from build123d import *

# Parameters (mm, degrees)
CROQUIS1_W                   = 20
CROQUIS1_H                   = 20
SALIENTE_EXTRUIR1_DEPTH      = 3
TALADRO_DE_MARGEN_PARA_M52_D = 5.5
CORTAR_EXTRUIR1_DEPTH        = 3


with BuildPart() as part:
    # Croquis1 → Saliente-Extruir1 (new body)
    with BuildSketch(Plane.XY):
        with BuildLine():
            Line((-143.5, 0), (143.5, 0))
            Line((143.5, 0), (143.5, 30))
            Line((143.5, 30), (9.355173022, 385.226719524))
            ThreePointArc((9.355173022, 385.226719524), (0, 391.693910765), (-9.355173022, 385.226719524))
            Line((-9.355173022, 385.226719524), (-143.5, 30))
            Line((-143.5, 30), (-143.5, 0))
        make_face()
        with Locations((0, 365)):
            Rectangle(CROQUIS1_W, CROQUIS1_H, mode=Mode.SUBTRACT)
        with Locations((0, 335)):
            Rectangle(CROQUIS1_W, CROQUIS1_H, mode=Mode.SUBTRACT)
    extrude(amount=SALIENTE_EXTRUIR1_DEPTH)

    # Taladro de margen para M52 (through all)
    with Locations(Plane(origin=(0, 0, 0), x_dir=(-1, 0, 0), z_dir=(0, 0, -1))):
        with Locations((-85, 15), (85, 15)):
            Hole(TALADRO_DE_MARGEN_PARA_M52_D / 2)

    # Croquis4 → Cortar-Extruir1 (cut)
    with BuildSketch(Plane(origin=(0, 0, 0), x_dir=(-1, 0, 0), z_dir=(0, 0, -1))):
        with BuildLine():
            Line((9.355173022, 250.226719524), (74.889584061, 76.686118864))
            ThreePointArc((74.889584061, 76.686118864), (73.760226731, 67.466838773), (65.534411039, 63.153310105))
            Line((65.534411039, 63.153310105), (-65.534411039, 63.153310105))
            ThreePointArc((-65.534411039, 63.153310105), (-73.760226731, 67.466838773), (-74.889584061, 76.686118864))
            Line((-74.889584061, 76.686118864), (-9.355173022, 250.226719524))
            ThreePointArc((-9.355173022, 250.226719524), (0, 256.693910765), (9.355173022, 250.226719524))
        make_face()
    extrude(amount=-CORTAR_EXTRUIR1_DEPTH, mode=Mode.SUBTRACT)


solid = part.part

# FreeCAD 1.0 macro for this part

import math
import FreeCAD as App
import Part
import Sketcher

doc = App.newDocument("Part")
body = doc.addObject("PartDesign::Body", "Body")

# Sketch on XY plane
sketch1 = body.newObject("Sketcher::SketchObject", "Sketch")
sketch1.AttachmentSupport = (doc.getObject("XY_Plane"), [""])
sketch1.MapMode = "FlatFace"
sketch1.addGeometry([
    Part.LineSegment(App.Vector(-143.5, 0, 0), App.Vector(143.5, 0, 0)),  # 0
    Part.LineSegment(App.Vector(143.5, 0, 0), App.Vector(143.5, 30, 0)),  # 1
    Part.LineSegment(App.Vector(143.5, 30, 0), App.Vector(9.355173, 385.22672, 0)),  # 2
    Part.ArcOfCircle(Part.Circle(App.Vector(0, 381.693911, 0), App.Vector(0, 0, 1), 10), math.radians(20.68812), math.radians(159.31188)),  # 3
    Part.LineSegment(App.Vector(-9.355173, 385.22672, 0), App.Vector(-143.5, 30, 0)),  # 4
    Part.LineSegment(App.Vector(-143.5, 30, 0), App.Vector(-143.5, 0, 0)),  # 5
    Part.LineSegment(App.Vector(10, 325, 0), App.Vector(-10, 325, 0)),  # 6
    Part.LineSegment(App.Vector(-10, 325, 0), App.Vector(-10, 345, 0)),  # 7
    Part.LineSegment(App.Vector(-10, 345, 0), App.Vector(10, 345, 0)),  # 8
    Part.LineSegment(App.Vector(10, 345, 0), App.Vector(10, 325, 0)),  # 9
    Part.LineSegment(App.Vector(10, 355, 0), App.Vector(-10, 355, 0)),  # 10
    Part.LineSegment(App.Vector(-10, 355, 0), App.Vector(-10, 375, 0)),  # 11
    Part.LineSegment(App.Vector(-10, 375, 0), App.Vector(10, 375, 0)),  # 12
    Part.LineSegment(App.Vector(10, 375, 0), App.Vector(10, 355, 0)),  # 13
], False)
sketch1.addConstraint([
    Sketcher.Constraint("Coincident", 0, 2, 1, 1),
    Sketcher.Constraint("Coincident", 1, 2, 2, 1),
    Sketcher.Constraint("Tangent", 2, 2, 3, 1),
    Sketcher.Constraint("Tangent", 3, 2, 4, 1),
    Sketcher.Constraint("Coincident", 4, 2, 5, 1),
    Sketcher.Constraint("Coincident", 5, 2, 0, 1),
    Sketcher.Constraint("Coincident", 6, 2, 7, 1),
    Sketcher.Constraint("Coincident", 7, 2, 8, 1),
    Sketcher.Constraint("Coincident", 8, 2, 9, 1),
    Sketcher.Constraint("Coincident", 9, 2, 6, 1),
    Sketcher.Constraint("Coincident", 10, 2, 11, 1),
    Sketcher.Constraint("Coincident", 11, 2, 12, 1),
    Sketcher.Constraint("Coincident", 12, 2, 13, 1),
    Sketcher.Constraint("Coincident", 13, 2, 10, 1),
    Sketcher.Constraint("Horizontal", 0),
    Sketcher.Constraint("Vertical", 1),
    Sketcher.Constraint("Vertical", 5),
    Sketcher.Constraint("Horizontal", 6),
    Sketcher.Constraint("Vertical", 7),
    Sketcher.Constraint("Horizontal", 8),
    Sketcher.Constraint("Vertical", 9),
    Sketcher.Constraint("Horizontal", 10),
    Sketcher.Constraint("Vertical", 11),
    Sketcher.Constraint("Horizontal", 12),
    Sketcher.Constraint("Vertical", 13),
    Sketcher.Constraint("Symmetric", 0, 2, 5, 2, -1, 1),
    Sketcher.Constraint("PointOnObject", 3, 3, -2),
    Sketcher.Constraint("Horizontal", 1, 2, 4, 2),
    Sketcher.Constraint("Vertical", 7, 2, 10, 2),
    Sketcher.Constraint("Vertical", 9, 2, 12, 2),
    Sketcher.Constraint("Equal", 12, 7),
    Sketcher.Constraint("Equal", 9, 11),
    Sketcher.Constraint("Radius", 3, 10.0),
    Sketcher.Constraint("DistanceX", 0, 1, 0, 2, 287.0),
    Sketcher.Constraint("DistanceX", 6, 2, 6, 1, 20.0),
    Sketcher.Constraint("DistanceY", 1, 1, 1, 2, 30.0),
    Sketcher.Constraint("DistanceX", 6, 2, -1, 1, 10.0),
    Sketcher.Constraint("DistanceY", -1, 1, 6, 2, 325.0),
    Sketcher.Constraint("DistanceY", -1, 1, 10, 2, 355.0),
    Sketcher.Constraint("DistanceY", -1, 1, 3, 3, 381.693911),
])
pad1 = body.newObject("PartDesign::Pad", "Pad")
pad1.Profile = sketch1
pad1.Length = 3

# Sketch on XY plane
sketch2 = body.newObject("Sketcher::SketchObject", "Sketch001")
sketch2.AttachmentSupport = (doc.getObject("XY_Plane"), [""])
sketch2.MapMode = "FlatFace"
sketch2.addGeometry([
    Part.Circle(App.Vector(85, 15, 0), App.Vector(0, 0, 1), 2.75),
    Part.Circle(App.Vector(-85, 15, 0), App.Vector(0, 0, 1), 2.75),
], False)
sketch2.addConstraint([
    Sketcher.Constraint("Equal", 0, 1),
    Sketcher.Constraint("Symmetric", 0, 3, 1, 3, -2),
    Sketcher.Constraint("Diameter", 0, 5.5),
    Sketcher.Constraint("DistanceX", -1, 1, 0, 3, 85.0),
    Sketcher.Constraint("DistanceY", -1, 1, 0, 3, 15.0),
])
doc.recompute()
hole = body.newObject("PartDesign::Hole", "Hole")
hole.Profile = sketch2
hole.ThreadType = "None"
hole.Diameter = 5.5
hole.DepthType = "ThroughAll"
hole.Reversed = True

# Sketch on XY plane
sketch3 = body.newObject("Sketcher::SketchObject", "Sketch002")
sketch3.AttachmentSupport = (doc.getObject("XY_Plane"), [""])
sketch3.MapMode = "FlatFace"
sketch3.addGeometry([
    Part.LineSegment(App.Vector(-74.889584, 76.686119, 0), App.Vector(-9.355173, 250.22672, 0)),  # 0
    Part.ArcOfCircle(Part.Circle(App.Vector(0, 246.693911, 0), App.Vector(0, 0, 1), 10), math.radians(20.68812), math.radians(159.31188)),  # 1
    Part.LineSegment(App.Vector(9.355173, 250.22672, 0), App.Vector(74.889584, 76.686119, 0)),  # 2
    Part.ArcOfCircle(Part.Circle(App.Vector(65.534411, 73.15331, 0), App.Vector(0, 0, 1), 10), math.radians(-90), math.radians(20.68812)),  # 3
    Part.LineSegment(App.Vector(65.534411, 63.15331, 0), App.Vector(-65.534411, 63.15331, 0)),  # 4
    Part.ArcOfCircle(Part.Circle(App.Vector(-65.534411, 73.15331, 0), App.Vector(0, 0, 1), 10), math.radians(159.31188), math.radians(270)),  # 5
], False)
sketch3.addConstraint([
    Sketcher.Constraint("Tangent", 0, 2, 1, 2),
    Sketcher.Constraint("Tangent", 1, 1, 2, 1),
    Sketcher.Constraint("Tangent", 2, 2, 3, 2),
    Sketcher.Constraint("Tangent", 3, 1, 4, 1),
    Sketcher.Constraint("Tangent", 4, 2, 5, 2),
    Sketcher.Constraint("Tangent", 5, 1, 0, 1),
    Sketcher.Constraint("Horizontal", 4),
    Sketcher.Constraint("Equal", 1, 3),
    Sketcher.Constraint("Equal", 3, 5),
    Sketcher.Constraint("Symmetric", 0, 2, 1, 1, -2),
    Sketcher.Constraint("Radius", 1, 10.0),
    Sketcher.Constraint("DistanceY", 3, 3, 1, 3, 173.540601),
    Sketcher.Constraint("Distance", 0, 185.502289),
    Sketcher.Constraint("DistanceY", -1, 1, 1, 3, 246.693911),
])
pocket1 = body.newObject("PartDesign::Pocket", "Pocket")
pocket1.Profile = sketch3
pocket1.Length = 3
pocket1.Reversed = True

doc.recompute()
